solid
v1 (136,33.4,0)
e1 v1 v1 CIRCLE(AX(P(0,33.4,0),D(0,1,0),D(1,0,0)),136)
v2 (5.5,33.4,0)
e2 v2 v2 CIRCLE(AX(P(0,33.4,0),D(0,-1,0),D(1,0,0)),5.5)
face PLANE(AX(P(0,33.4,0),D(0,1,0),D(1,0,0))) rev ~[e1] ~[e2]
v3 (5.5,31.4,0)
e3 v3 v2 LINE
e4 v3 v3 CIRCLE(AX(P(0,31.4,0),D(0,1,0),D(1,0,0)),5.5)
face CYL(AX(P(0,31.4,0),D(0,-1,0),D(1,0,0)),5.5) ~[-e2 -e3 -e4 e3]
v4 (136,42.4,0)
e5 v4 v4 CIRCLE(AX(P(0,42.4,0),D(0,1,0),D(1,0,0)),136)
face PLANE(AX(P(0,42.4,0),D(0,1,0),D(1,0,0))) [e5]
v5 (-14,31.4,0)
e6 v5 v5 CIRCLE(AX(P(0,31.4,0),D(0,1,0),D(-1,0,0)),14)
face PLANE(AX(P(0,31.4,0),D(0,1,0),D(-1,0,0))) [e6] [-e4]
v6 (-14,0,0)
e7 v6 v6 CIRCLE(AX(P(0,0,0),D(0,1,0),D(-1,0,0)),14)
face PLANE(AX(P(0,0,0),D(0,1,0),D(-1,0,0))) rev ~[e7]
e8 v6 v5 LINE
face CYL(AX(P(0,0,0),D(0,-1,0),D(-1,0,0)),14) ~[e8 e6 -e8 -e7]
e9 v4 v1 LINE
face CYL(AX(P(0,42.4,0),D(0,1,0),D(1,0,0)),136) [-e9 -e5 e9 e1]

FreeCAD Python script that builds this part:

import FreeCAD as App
import Part
import Sketcher

V = App.Vector

doc = App.newDocument("Part")
body = doc.addObject("PartDesign::Body", "Body")

# Sketch on XZ plane
sketch1 = doc.addObject("Sketcher::SketchObject", "Sketch")
body.addObject(sketch1)
sketch1.AttachmentSupport = (doc.XZ_Plane, [""])
sketch1.MapMode = "FlatFace"
sketch1.addGeometry(Part.Circle(V(0, 0, 0), V(0, 0, 1), 14), False)
sketch1.addConstraint(Sketcher.Constraint("Coincident", 0, 3, -1, 1))
sketch1.addConstraint(Sketcher.Constraint("Diameter", 0, 28.0))
pad1 = doc.addObject("PartDesign::Pad", "Pad")
body.addObject(pad1)
pad1.Profile = sketch1
pad1.Length = 31.4
pad1.Reversed = True

# Sketch on XZ plane
sketch2 = doc.addObject("Sketcher::SketchObject", "Sketch001")
body.addObject(sketch2)
sketch2.AttachmentSupport = (doc.XZ_Plane, [""])
sketch2.MapMode = "FlatFace"
sketch2.AttachmentOffset = App.Placement(V(0, 0, -31.4), App.Rotation())
sketch2.addGeometry(Part.Circle(V(0, 0, 0), V(0, 0, 1), 5.5), False)
sketch2.addConstraint(Sketcher.Constraint("Coincident", 0, 3, -1, 1))
sketch2.addConstraint(Sketcher.Constraint("Diameter", 0, 11.0))
pad2 = doc.addObject("PartDesign::Pad", "Pad001")
body.addObject(pad2)
pad2.Profile = sketch2
pad2.Length = 11
pad2.Reversed = True

# Sketch on XZ plane
sketch3 = doc.addObject("Sketcher::SketchObject", "Sketch002")
body.addObject(sketch3)
sketch3.AttachmentSupport = (doc.XZ_Plane, [""])
sketch3.MapMode = "FlatFace"
sketch3.AttachmentOffset = App.Placement(V(0, 0, -42.4), App.Rotation())
sketch3.addGeometry(Part.Circle(V(0, 0, 0), V(0, 0, 1), 136), False)
sketch3.addConstraint(Sketcher.Constraint("Coincident", 0, 3, -1, 1))
sketch3.addConstraint(Sketcher.Constraint("Diameter", 0, 272.0))
pad3 = doc.addObject("PartDesign::Pad", "Pad002")
body.addObject(pad3)
pad3.Profile = sketch3
pad3.Length = 9

doc.recompute()
